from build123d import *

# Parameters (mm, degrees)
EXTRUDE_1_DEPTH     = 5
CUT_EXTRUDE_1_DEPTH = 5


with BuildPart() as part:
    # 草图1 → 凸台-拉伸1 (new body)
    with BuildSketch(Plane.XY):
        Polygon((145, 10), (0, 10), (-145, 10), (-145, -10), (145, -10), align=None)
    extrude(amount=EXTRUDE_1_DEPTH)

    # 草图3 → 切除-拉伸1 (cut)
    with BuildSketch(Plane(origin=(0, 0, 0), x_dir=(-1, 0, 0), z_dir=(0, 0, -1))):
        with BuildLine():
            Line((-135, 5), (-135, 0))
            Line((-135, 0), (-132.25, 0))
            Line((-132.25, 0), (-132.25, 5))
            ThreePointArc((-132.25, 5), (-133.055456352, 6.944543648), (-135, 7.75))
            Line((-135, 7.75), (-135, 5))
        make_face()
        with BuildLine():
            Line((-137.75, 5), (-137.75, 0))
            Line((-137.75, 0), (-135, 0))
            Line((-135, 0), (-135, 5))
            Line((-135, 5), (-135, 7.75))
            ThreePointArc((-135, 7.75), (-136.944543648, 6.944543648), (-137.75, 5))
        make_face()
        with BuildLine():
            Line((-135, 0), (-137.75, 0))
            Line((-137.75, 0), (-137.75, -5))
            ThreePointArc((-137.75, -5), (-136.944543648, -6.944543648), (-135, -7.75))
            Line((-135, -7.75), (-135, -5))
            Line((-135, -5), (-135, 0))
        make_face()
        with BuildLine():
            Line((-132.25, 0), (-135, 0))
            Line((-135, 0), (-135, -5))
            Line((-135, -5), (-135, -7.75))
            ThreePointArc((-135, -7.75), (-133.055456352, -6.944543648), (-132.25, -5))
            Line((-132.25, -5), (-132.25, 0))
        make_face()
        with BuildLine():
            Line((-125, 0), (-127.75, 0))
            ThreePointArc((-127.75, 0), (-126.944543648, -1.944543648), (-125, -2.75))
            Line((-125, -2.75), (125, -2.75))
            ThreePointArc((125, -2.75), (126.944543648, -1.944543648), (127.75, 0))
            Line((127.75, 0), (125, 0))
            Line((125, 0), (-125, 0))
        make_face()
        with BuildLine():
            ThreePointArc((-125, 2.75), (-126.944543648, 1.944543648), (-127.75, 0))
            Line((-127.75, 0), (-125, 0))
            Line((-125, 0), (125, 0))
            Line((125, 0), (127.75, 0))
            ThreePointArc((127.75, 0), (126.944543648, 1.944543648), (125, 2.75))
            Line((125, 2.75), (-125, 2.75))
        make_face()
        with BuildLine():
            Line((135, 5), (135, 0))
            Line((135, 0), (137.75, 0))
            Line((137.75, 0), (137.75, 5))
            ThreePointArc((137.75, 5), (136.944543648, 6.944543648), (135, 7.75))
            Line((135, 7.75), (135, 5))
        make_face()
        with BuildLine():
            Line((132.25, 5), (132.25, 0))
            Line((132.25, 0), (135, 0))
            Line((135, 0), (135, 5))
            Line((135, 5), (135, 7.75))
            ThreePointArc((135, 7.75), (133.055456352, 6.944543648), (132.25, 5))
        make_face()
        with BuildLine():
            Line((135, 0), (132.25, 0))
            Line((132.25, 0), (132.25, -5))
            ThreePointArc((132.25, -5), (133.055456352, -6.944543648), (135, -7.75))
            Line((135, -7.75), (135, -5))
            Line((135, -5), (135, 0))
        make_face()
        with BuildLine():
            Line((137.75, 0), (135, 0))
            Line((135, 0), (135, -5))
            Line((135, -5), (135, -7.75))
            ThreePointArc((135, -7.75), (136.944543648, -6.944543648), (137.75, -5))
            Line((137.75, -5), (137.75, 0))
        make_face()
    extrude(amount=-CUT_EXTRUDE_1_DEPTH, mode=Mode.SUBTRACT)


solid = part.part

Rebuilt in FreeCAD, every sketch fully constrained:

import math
import FreeCAD as App
import Part
import Sketcher


def add_polygon(sketch, points):
    """Adds a closed chain of lines whose ends are joined by coincident constraints."""
    first, n = sketch.GeometryCount, len(points)
    for a, b in zip(points, points[1:] + points[:1]):
        sketch.addGeometry(Part.LineSegment(App.Vector(*a, 0), App.Vector(*b, 0)), False)
    for i in range(n):
        sketch.addConstraint(Sketcher.Constraint("Coincident", first + i, 2, first + (i + 1) % n, 1))

doc = App.newDocument("Part")
params = doc.addObject("Spreadsheet::Sheet", "Params")
for row, (alias, value) in enumerate([
    ("sketch1_width", "290 mm"),
    ("sketch1_height", "20 mm"),
    ("pad1_length", "5 mm"),
    ("sketch2_width", "250 mm"),
    ("sketch2_height", "10 mm"),
    ("sketch2_radius", "2.75 mm"),
    ("pocket1_length", "5 mm"),
], start=1):
    params.set(f"A{row}", alias)
    params.set(f"B{row}", "=" + value)
    params.setAlias(f"B{row}", alias)

body = doc.addObject("PartDesign::Body", "Body")

# Sketch on XY plane
sketch1 = body.newObject("Sketcher::SketchObject", "Sketch")
sketch1.AttachmentSupport = (doc.getObject("XY_Plane"), [""])
sketch1.MapMode = "FlatFace"
add_polygon(sketch1, [(145, 10), (-145, 10), (-145, -10), (145, -10)])  # lines 0-3
sketch1.addConstraint([
    Sketcher.Constraint("Horizontal", 0),
    Sketcher.Constraint("Vertical", 1),
    Sketcher.Constraint("Horizontal", 2),
    Sketcher.Constraint("Vertical", 3),
    Sketcher.Constraint("Symmetric", 0, 2, 2, 2, -1, 1),
    Sketcher.Constraint("DistanceX", 0, 2, 0, 1, 290.0),
    Sketcher.Constraint("DistanceY", 1, 2, 1, 1, 20.0),
])
sketch1.setExpression("Constraints[9]", "Params.sketch1_width")
sketch1.setExpression("Constraints[10]", "Params.sketch1_height")
pad1 = body.newObject("PartDesign::Pad", "Pad")
pad1.Profile = sketch1
pad1.setExpression("Length", "Params.pad1_length")

# Sketch on XY plane
sketch2 = body.newObject("Sketcher::SketchObject", "Sketch001")
sketch2.AttachmentSupport = (doc.getObject("XY_Plane"), [""])
sketch2.MapMode = "FlatFace"
sketch2.addGeometry([
    Part.ArcOfCircle(Part.Circle(App.Vector(135, 5, 0), App.Vector(0, 0, 1), 2.75), math.radians(90), math.radians(180)),  # 0
    Part.ArcOfCircle(Part.Circle(App.Vector(135, 5, 0), App.Vector(0, 0, 1), 2.75), math.radians(0), math.radians(90)),  # 1
    Part.LineSegment(App.Vector(137.75, 5, 0), App.Vector(137.75, -5, 0)),  # 2
    Part.ArcOfCircle(Part.Circle(App.Vector(135, -5, 0), App.Vector(0, 0, 1), 2.75), math.radians(-90), math.radians(0)),  # 3
    Part.ArcOfCircle(Part.Circle(App.Vector(135, -5, 0), App.Vector(0, 0, 1), 2.75), math.radians(-180), math.radians(-90)),  # 4
    Part.LineSegment(App.Vector(132.25, -5, 0), App.Vector(132.25, 5, 0)),  # 5
    Part.ArcOfCircle(Part.Circle(App.Vector(125, 0, 0), App.Vector(0, 0, 1), 2.75), math.radians(-90), math.radians(0)),  # 6
    Part.LineSegment(App.Vector(125, -2.75, 0), App.Vector(-125, -2.75, 0)),  # 7
    Part.ArcOfCircle(Part.Circle(App.Vector(-125, 0, 0), App.Vector(0, 0, 1), 2.75), math.radians(-180), math.radians(-90)),  # 8
    Part.ArcOfCircle(Part.Circle(App.Vector(-125, 0, 0), App.Vector(0, 0, 1), 2.75), math.radians(90), math.radians(180)),  # 9
    Part.LineSegment(App.Vector(-125, 2.75, 0), App.Vector(125, 2.75, 0)),  # 10
    Part.ArcOfCircle(Part.Circle(App.Vector(125, 0, 0), App.Vector(0, 0, 1), 2.75), math.radians(0), math.radians(90)),  # 11
    Part.ArcOfCircle(Part.Circle(App.Vector(-135, 5, 0), App.Vector(0, 0, 1), 2.75), math.radians(90), math.radians(180)),  # 12
    Part.ArcOfCircle(Part.Circle(App.Vector(-135, 5, 0), App.Vector(0, 0, 1), 2.75), math.radians(0), math.radians(90)),  # 13
    Part.LineSegment(App.Vector(-132.25, 5, 0), App.Vector(-132.25, -5, 0)),  # 14
    Part.ArcOfCircle(Part.Circle(App.Vector(-135, -5, 0), App.Vector(0, 0, 1), 2.75), math.radians(-90), math.radians(0)),  # 15
    Part.ArcOfCircle(Part.Circle(App.Vector(-135, -5, 0), App.Vector(0, 0, 1), 2.75), math.radians(-180), math.radians(-90)),  # 16
    Part.LineSegment(App.Vector(-137.75, -5, 0), App.Vector(-137.75, 5, 0)),  # 17
], False)
sketch2.addConstraint([
    Sketcher.Constraint("Tangent", 0, 1, 1, 2),
    Sketcher.Constraint("Tangent", 1, 1, 2, 1),
    Sketcher.Constraint("Tangent", 2, 2, 3, 2),
    Sketcher.Constraint("Tangent", 3, 1, 4, 2),
    Sketcher.Constraint("Tangent", 4, 1, 5, 1),
    Sketcher.Constraint("Tangent", 5, 2, 0, 2),
    Sketcher.Constraint("Tangent", 6, 1, 7, 1),
    Sketcher.Constraint("Tangent", 7, 2, 8, 2),
    Sketcher.Constraint("Tangent", 8, 1, 9, 2),
    Sketcher.Constraint("Tangent", 9, 1, 10, 1),
    Sketcher.Constraint("Tangent", 10, 2, 11, 2),
    Sketcher.Constraint("Tangent", 11, 1, 6, 2),
    Sketcher.Constraint("Tangent", 12, 1, 13, 2),
    Sketcher.Constraint("Tangent", 13, 1, 14, 1),
    Sketcher.Constraint("Tangent", 14, 2, 15, 2),
    Sketcher.Constraint("Tangent", 15, 1, 16, 2),
    Sketcher.Constraint("Tangent", 16, 1, 17, 1),
    Sketcher.Constraint("Tangent", 17, 2, 12, 2),
    Sketcher.Constraint("Vertical", 2),
    Sketcher.Constraint("Vertical", 5),
    Sketcher.Constraint("Horizontal", 7),
    Sketcher.Constraint("Horizontal", 10),
    Sketcher.Constraint("Vertical", 14),
    Sketcher.Constraint("Vertical", 17),
    Sketcher.Constraint("Equal", 0, 1),
    Sketcher.Constraint("Equal", 1, 3),
    Sketcher.Constraint("Equal", 4, 6),
    Sketcher.Constraint("Equal", 6, 8),
    Sketcher.Constraint("Equal", 8, 9),
    Sketcher.Constraint("Equal", 11, 12),
    Sketcher.Constraint("Equal", 12, 13),
    Sketcher.Constraint("Equal", 13, 15),
    Sketcher.Constraint("Symmetric", 6, 3, 8, 3, -1, 1),
    Sketcher.Constraint("Symmetric", 3, 3, 12, 3, -1, 1),
    Sketcher.Constraint("Symmetric", 0, 1, 15, 1, -1, 1),
    Sketcher.Constraint("Symmetric", 0, 1, 12, 1, -2),
    Sketcher.Constraint("PointOnObject", 8, 1, -1),
    Sketcher.Constraint("PointOnObject", 11, 1, -1),
    Sketcher.Constraint("Vertical", 4, 3, 0, 1),
    Sketcher.Constraint("Vertical", 0, 1, 3, 1),
    Sketcher.Constraint("DistanceX", 7, 2, 7, 1, 250.0),
    Sketcher.Constraint("DistanceY", 2, 2, 2, 1, 10.0),
    Sketcher.Constraint("Radius", 0, 2.75),
    Sketcher.Constraint("DistanceX", -1, 1, 0, 3, 135.0),
])
sketch2.setExpression("Constraints[40]", "Params.sketch2_width")
sketch2.setExpression("Constraints[41]", "Params.sketch2_height")
sketch2.setExpression("Constraints[42]", "Params.sketch2_radius")
pocket1 = body.newObject("PartDesign::Pocket", "Pocket")
pocket1.Profile = sketch2
pocket1.setExpression("Length", "Params.pocket1_length")
pocket1.Reversed = True

doc.recompute()
